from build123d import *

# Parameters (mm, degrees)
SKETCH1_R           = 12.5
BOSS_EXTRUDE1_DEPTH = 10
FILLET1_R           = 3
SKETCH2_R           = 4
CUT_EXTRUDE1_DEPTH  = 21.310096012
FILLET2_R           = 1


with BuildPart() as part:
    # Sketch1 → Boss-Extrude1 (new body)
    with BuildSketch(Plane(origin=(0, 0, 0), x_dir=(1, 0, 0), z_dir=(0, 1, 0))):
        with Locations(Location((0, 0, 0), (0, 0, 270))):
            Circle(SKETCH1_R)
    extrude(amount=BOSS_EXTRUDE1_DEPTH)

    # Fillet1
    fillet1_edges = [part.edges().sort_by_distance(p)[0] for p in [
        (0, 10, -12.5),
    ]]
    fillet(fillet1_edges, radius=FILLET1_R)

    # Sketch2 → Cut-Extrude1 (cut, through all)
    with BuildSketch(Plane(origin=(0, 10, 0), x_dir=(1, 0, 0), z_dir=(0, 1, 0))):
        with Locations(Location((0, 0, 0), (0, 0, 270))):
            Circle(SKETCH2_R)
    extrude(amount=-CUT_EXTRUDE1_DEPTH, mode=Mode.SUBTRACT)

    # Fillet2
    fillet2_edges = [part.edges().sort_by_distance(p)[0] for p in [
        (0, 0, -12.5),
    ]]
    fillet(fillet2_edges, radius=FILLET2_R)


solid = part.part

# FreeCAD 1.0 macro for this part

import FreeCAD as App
import Part
import Sketcher

V = App.Vector


def edges_at(feature, points):
    """Names of the edges that pass closest to the given points."""
    edges = feature.Shape.Edges
    near = lambda p: min(range(len(edges)), key=lambda i: edges[i].distToShape(Part.Vertex(*p))[0])
    return sorted({f"Edge{near(p) + 1}" for p in points})

doc = App.newDocument("Part")
params = doc.addObject("Spreadsheet::Sheet", "Params")
for row, (alias, value) in enumerate([
    ("sketch1_diameter", "25 mm"),
    ("pad1_length", "10 mm"),
    ("fillet_radius", "3 mm"),
    ("sketch2_diameter", "8 mm"),
    ("fillet2_radius", "1 mm"),
], start=1):
    params.set(f"A{row}", alias)
    params.set(f"B{row}", "=" + value)
    params.setAlias(f"B{row}", alias)

body = doc.addObject("PartDesign::Body", "Body")

# Sketch on XZ plane
sketch1 = body.newObject("Sketcher::SketchObject", "Sketch")
sketch1.AttachmentSupport = (doc.getObject("XZ_Plane"), [""])
sketch1.MapMode = "FlatFace"
sketch1.addGeometry(Part.Circle(V(0, 0, 0), V(0, 0, 1), 12), False)
sketch1.addConstraint([
    Sketcher.Constraint("Coincident", 0, 3, -1, 1),
    Sketcher.Constraint("Diameter", 0, 25.0),
])
sketch1.setExpression("Constraints[1]", "Params.sketch1_diameter")
pad1 = body.newObject("PartDesign::Pad", "Pad")
pad1.Profile = sketch1
pad1.setExpression("Length", "Params.pad1_length")
pad1.Reversed = True
doc.recompute()

fillet = body.newObject("PartDesign::Fillet", "Fillet")
fillet.Base = (pad1, edges_at(pad1, [(0, 10, -12.5)]))
fillet.setExpression("Radius", "Params.fillet_radius")

# Sketch on XZ plane
sketch2 = body.newObject("Sketcher::SketchObject", "Sketch001")
sketch2.AttachmentSupport = (doc.getObject("XZ_Plane"), [""])
sketch2.MapMode = "FlatFace"
sketch2.AttachmentOffset = App.Placement(V(0, 0, -10), App.Rotation())
sketch2.addGeometry(Part.Circle(V(0, 0, 0), V(0, 0, 1), 4), False)
sketch2.addConstraint([
    Sketcher.Constraint("Coincident", 0, 3, -1, 1),
    Sketcher.Constraint("Diameter", 0, 8.0),
])
sketch2.setExpression("Constraints[1]", "Params.sketch2_diameter")
pocket1 = body.newObject("PartDesign::Pocket", "Pocket")
pocket1.Profile = sketch2
pocket1.Type = "ThroughAll"
pocket1.Reversed = True
doc.recompute()

fillet2 = body.newObject("PartDesign::Fillet", "Fillet001")
fillet2.Base = (pocket1, edges_at(pocket1, [(0, 0, -12.5)]))
fillet2.setExpression("Radius", "Params.fillet2_radius")

doc.recompute()
